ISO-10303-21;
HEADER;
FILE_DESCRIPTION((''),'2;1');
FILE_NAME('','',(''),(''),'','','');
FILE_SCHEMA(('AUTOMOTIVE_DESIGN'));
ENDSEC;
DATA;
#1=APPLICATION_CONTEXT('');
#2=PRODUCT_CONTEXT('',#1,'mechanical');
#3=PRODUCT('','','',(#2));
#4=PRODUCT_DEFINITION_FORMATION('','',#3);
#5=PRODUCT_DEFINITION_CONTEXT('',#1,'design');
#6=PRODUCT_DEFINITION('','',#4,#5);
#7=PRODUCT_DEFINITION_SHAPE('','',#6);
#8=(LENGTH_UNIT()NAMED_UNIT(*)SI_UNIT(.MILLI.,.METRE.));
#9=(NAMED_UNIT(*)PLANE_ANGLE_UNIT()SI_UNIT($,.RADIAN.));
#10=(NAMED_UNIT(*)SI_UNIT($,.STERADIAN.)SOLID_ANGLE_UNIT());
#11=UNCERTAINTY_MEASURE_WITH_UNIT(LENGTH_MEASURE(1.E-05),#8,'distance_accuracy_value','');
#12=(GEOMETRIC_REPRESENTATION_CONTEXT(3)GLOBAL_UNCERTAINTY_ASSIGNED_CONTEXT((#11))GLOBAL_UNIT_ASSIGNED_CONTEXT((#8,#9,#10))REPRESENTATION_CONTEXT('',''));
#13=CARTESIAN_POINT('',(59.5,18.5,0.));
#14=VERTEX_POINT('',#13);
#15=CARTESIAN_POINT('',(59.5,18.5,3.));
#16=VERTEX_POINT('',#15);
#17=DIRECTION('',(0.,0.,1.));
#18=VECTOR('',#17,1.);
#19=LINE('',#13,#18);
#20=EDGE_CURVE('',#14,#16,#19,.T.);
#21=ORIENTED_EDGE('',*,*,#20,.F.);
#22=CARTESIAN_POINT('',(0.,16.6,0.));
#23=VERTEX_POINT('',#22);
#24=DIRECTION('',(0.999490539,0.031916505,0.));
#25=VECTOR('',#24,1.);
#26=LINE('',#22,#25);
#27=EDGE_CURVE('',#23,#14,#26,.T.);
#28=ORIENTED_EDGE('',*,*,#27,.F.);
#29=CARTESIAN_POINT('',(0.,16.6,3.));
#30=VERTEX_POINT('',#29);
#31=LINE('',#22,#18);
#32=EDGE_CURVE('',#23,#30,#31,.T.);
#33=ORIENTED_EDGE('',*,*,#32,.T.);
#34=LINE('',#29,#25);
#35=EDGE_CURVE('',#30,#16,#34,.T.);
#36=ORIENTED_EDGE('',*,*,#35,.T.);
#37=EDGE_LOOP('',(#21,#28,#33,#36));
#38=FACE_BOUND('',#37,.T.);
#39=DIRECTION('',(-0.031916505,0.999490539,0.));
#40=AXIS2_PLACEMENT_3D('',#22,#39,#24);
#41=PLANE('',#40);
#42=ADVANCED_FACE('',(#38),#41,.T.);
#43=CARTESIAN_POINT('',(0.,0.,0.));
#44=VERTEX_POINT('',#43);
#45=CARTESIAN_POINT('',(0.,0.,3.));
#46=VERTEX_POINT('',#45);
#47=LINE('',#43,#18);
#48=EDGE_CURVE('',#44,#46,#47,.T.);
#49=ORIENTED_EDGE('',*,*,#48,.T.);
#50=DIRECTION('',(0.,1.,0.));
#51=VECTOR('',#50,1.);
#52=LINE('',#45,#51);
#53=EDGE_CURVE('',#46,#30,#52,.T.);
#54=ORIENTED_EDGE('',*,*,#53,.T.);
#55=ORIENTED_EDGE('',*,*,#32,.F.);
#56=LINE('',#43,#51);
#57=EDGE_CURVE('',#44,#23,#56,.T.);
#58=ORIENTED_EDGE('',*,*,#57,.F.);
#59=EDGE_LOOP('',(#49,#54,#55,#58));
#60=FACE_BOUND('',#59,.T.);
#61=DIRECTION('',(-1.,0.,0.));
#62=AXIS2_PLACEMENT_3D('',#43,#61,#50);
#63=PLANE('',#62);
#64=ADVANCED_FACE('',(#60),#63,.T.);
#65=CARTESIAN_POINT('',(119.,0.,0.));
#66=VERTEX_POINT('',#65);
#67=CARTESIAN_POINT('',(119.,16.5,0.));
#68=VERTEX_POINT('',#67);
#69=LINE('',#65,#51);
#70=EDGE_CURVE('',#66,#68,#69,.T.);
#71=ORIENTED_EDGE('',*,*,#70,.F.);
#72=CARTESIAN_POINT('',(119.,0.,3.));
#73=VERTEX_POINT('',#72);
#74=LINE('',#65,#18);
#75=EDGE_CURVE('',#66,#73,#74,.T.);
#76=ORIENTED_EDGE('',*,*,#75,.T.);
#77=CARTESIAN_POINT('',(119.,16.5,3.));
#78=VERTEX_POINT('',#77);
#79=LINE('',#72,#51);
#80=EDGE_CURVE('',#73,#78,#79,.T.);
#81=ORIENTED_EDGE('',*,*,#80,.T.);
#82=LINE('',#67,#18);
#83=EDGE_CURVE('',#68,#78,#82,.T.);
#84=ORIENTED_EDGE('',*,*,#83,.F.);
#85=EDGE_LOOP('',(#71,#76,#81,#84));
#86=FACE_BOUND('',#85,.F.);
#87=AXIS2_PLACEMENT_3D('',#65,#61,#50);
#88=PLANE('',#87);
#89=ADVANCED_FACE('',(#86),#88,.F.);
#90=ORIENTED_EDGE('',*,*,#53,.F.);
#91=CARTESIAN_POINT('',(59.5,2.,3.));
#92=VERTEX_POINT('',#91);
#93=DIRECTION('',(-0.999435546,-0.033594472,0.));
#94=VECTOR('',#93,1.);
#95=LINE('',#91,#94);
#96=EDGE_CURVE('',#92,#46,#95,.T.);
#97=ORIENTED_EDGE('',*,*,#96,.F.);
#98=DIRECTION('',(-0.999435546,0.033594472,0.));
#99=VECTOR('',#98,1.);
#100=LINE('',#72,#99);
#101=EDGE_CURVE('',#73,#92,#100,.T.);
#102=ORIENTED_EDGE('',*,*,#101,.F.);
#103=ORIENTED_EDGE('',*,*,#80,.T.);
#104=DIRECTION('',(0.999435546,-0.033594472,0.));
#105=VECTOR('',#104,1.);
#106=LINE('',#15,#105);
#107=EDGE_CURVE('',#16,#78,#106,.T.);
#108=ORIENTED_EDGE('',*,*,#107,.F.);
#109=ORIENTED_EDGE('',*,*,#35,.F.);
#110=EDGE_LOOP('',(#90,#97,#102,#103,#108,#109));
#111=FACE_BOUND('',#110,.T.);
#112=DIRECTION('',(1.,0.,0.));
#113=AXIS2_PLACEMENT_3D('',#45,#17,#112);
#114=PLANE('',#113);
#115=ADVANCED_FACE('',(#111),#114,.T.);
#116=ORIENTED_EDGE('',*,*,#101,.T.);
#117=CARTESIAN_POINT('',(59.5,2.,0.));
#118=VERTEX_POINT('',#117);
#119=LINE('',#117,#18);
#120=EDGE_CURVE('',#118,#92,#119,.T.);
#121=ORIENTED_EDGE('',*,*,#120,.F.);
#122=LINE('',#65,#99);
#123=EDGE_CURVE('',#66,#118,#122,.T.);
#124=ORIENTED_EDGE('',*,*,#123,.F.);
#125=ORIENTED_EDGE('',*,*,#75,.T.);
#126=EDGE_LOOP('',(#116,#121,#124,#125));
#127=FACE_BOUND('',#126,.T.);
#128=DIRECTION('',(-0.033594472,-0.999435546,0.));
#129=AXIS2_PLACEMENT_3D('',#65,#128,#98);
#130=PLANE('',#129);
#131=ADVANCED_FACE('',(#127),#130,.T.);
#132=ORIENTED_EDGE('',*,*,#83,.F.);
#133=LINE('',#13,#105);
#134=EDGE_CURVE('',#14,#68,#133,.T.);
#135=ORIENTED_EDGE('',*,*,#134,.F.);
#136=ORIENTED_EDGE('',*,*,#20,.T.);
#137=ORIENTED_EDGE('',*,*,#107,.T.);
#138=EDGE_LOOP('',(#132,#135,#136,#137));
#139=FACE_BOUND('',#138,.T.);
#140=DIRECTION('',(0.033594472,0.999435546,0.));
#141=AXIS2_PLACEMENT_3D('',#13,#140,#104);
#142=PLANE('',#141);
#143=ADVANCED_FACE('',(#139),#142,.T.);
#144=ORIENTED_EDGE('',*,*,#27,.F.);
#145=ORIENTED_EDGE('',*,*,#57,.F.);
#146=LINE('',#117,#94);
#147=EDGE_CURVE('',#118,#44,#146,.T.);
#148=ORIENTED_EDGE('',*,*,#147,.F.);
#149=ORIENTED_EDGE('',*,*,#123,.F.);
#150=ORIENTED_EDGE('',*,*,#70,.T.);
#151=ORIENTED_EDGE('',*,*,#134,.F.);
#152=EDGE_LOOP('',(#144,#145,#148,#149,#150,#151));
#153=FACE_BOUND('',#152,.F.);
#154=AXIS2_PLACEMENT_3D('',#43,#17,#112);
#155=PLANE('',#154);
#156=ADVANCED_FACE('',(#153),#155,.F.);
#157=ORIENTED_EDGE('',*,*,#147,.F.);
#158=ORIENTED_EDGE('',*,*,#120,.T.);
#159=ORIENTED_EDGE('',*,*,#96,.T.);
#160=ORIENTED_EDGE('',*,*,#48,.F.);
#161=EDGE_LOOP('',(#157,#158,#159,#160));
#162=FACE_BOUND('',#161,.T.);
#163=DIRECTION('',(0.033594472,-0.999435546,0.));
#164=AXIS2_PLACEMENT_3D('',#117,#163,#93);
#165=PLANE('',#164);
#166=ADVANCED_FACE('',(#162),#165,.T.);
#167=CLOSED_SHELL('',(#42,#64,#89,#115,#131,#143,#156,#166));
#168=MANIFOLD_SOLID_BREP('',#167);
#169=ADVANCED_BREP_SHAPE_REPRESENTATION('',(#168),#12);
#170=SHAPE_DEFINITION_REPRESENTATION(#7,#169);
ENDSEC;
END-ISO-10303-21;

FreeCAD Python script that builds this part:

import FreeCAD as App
import Part
import Sketcher

doc = App.newDocument("Part")
body = doc.addObject("PartDesign::Body", "Body")

sketch1 = doc.addObject("Sketcher::SketchObject", "Sketch")
body.addObject(sketch1)
sketch1.AttachmentSupport = (doc.XY_Plane, [""])
sketch1.MapMode = "FlatFace"
sketch1.addGeometry([
    Part.LineSegment(App.Vector(0, 17, 0), App.Vector(0, 0, 0)),
    Part.LineSegment(App.Vector(0, 0, 0), App.Vector(60, 2, 0)),
    Part.LineSegment(App.Vector(60, 2, 0), App.Vector(119, 0, 0)),
    Part.LineSegment(App.Vector(119, 0, 0), App.Vector(119, 16, 0)),
    Part.LineSegment(App.Vector(119, 16, 0), App.Vector(60, 18, 0)),
    Part.LineSegment(App.Vector(60, 18, 0), App.Vector(0, 17, 0)),
], False)
sketch1.addConstraint([
    Sketcher.Constraint("Coincident", 0, 2, 1, 1),
    Sketcher.Constraint("Coincident", 1, 2, 2, 1),
    Sketcher.Constraint("Coincident", 2, 2, 3, 1),
    Sketcher.Constraint("Coincident", 3, 2, 4, 1),
    Sketcher.Constraint("Coincident", 4, 2, 5, 1),
    Sketcher.Constraint("Coincident", 5, 2, 0, 1),
    Sketcher.Constraint("Vertical", 0),
    Sketcher.Constraint("Vertical", 3),
    Sketcher.Constraint("Coincident", 0, 2, -1, 1),
    Sketcher.Constraint("PointOnObject", 2, 2, -1),
    Sketcher.Constraint("Parallel", 2, 4),
    Sketcher.Constraint("Vertical", 1, 2, 4, 2),
    Sketcher.Constraint("Equal", 1, 2),
    Sketcher.Constraint("DistanceY", 0, 2, 0, 1, 16.6),
    Sketcher.Constraint("DistanceY", 3, 1, 3, 2, 16.5),
    Sketcher.Constraint("DistanceY", -1, 1, 1, 2, 2.0),
    Sketcher.Constraint("DistanceX", -1, 1, 2, 2, 119.0),
])
pad1 = doc.addObject("PartDesign::Pad", "Pad")
body.addObject(pad1)
pad1.Profile = sketch1
pad1.Length = 3

doc.recompute()
